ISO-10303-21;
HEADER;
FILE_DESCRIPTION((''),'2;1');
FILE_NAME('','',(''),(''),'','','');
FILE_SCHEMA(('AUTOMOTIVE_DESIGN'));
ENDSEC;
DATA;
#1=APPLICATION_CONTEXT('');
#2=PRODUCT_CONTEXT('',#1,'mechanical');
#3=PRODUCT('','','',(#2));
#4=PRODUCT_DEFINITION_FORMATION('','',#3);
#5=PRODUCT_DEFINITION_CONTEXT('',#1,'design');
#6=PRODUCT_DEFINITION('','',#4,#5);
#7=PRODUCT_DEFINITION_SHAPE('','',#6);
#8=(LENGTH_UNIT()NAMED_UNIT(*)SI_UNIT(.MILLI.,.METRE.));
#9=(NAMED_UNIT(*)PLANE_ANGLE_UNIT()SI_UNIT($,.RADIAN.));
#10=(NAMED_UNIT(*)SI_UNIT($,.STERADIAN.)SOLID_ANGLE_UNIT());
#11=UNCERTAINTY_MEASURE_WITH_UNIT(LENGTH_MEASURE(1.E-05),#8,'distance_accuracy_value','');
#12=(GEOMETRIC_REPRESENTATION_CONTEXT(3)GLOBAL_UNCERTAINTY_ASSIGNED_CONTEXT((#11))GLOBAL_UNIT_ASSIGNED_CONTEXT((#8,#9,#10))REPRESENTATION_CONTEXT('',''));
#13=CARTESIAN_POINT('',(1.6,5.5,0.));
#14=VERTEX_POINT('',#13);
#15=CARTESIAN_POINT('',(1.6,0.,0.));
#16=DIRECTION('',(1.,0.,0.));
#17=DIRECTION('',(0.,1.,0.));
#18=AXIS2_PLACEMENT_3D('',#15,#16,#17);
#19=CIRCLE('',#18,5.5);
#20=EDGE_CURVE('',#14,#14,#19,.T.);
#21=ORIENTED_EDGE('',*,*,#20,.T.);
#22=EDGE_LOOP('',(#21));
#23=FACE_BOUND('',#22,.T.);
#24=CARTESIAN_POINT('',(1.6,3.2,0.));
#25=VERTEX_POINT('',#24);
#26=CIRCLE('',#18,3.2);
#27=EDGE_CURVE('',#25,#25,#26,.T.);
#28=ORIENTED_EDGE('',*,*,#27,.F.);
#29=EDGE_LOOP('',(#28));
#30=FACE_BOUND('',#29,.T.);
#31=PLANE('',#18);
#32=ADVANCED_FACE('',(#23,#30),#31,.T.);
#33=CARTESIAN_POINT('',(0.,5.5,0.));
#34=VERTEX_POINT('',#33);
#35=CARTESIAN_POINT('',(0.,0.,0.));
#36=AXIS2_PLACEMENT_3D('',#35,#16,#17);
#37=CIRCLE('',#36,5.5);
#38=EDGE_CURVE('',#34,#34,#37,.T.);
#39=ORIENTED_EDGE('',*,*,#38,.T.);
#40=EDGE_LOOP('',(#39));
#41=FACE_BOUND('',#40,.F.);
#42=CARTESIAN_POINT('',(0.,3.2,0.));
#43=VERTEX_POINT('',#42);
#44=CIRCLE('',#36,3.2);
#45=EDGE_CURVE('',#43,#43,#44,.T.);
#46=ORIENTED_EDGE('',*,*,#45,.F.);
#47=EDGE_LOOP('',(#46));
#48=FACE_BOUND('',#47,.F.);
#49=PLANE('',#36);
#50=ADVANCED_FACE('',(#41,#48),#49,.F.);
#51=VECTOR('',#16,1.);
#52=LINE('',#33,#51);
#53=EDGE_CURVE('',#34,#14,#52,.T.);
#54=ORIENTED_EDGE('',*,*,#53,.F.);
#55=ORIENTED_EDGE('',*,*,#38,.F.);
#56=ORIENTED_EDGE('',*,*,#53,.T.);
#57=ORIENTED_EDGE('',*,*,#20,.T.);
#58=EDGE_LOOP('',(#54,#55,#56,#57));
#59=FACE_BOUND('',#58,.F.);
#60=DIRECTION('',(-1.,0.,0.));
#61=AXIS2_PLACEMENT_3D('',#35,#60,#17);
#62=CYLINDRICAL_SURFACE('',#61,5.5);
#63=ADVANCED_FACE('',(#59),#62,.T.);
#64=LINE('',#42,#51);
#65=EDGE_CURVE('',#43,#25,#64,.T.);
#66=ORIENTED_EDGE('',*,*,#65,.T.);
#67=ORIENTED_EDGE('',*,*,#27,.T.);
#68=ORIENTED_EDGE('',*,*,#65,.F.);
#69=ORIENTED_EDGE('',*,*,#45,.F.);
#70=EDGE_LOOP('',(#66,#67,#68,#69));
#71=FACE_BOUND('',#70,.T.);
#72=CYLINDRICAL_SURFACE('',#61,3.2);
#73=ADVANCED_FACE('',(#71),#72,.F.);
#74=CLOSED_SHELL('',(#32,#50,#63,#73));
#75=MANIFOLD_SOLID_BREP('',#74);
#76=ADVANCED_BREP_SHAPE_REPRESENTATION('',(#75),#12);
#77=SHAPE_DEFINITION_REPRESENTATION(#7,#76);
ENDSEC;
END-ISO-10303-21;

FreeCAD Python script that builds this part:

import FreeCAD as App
import Part
import Sketcher

V = App.Vector

doc = App.newDocument("Part")
body = doc.addObject("PartDesign::Body", "Body")

# Sketch on YZ plane
sketch1 = body.newObject("Sketcher::SketchObject", "Sketch")
sketch1.AttachmentSupport = (doc.getObject("YZ_Plane"), [""])
sketch1.MapMode = "FlatFace"
sketch1.addGeometry([
    Part.Circle(V(0, 0, 0), V(0, 0, 1), 5.5),
    Part.Circle(V(0, 0, 0), V(0, 0, 1), 3.2),
], False)
sketch1.addConstraint([
    Sketcher.Constraint("Coincident", 0, 3, -1, 1),
    Sketcher.Constraint("Coincident", 1, 3, -1, 1),
    Sketcher.Constraint("Diameter", 0, 11.0),
    Sketcher.Constraint("Diameter", 1, 6.4),
])
pad1 = body.newObject("PartDesign::Pad", "Pad")
pad1.Profile = sketch1
pad1.Length = 1.6

doc.recompute()
